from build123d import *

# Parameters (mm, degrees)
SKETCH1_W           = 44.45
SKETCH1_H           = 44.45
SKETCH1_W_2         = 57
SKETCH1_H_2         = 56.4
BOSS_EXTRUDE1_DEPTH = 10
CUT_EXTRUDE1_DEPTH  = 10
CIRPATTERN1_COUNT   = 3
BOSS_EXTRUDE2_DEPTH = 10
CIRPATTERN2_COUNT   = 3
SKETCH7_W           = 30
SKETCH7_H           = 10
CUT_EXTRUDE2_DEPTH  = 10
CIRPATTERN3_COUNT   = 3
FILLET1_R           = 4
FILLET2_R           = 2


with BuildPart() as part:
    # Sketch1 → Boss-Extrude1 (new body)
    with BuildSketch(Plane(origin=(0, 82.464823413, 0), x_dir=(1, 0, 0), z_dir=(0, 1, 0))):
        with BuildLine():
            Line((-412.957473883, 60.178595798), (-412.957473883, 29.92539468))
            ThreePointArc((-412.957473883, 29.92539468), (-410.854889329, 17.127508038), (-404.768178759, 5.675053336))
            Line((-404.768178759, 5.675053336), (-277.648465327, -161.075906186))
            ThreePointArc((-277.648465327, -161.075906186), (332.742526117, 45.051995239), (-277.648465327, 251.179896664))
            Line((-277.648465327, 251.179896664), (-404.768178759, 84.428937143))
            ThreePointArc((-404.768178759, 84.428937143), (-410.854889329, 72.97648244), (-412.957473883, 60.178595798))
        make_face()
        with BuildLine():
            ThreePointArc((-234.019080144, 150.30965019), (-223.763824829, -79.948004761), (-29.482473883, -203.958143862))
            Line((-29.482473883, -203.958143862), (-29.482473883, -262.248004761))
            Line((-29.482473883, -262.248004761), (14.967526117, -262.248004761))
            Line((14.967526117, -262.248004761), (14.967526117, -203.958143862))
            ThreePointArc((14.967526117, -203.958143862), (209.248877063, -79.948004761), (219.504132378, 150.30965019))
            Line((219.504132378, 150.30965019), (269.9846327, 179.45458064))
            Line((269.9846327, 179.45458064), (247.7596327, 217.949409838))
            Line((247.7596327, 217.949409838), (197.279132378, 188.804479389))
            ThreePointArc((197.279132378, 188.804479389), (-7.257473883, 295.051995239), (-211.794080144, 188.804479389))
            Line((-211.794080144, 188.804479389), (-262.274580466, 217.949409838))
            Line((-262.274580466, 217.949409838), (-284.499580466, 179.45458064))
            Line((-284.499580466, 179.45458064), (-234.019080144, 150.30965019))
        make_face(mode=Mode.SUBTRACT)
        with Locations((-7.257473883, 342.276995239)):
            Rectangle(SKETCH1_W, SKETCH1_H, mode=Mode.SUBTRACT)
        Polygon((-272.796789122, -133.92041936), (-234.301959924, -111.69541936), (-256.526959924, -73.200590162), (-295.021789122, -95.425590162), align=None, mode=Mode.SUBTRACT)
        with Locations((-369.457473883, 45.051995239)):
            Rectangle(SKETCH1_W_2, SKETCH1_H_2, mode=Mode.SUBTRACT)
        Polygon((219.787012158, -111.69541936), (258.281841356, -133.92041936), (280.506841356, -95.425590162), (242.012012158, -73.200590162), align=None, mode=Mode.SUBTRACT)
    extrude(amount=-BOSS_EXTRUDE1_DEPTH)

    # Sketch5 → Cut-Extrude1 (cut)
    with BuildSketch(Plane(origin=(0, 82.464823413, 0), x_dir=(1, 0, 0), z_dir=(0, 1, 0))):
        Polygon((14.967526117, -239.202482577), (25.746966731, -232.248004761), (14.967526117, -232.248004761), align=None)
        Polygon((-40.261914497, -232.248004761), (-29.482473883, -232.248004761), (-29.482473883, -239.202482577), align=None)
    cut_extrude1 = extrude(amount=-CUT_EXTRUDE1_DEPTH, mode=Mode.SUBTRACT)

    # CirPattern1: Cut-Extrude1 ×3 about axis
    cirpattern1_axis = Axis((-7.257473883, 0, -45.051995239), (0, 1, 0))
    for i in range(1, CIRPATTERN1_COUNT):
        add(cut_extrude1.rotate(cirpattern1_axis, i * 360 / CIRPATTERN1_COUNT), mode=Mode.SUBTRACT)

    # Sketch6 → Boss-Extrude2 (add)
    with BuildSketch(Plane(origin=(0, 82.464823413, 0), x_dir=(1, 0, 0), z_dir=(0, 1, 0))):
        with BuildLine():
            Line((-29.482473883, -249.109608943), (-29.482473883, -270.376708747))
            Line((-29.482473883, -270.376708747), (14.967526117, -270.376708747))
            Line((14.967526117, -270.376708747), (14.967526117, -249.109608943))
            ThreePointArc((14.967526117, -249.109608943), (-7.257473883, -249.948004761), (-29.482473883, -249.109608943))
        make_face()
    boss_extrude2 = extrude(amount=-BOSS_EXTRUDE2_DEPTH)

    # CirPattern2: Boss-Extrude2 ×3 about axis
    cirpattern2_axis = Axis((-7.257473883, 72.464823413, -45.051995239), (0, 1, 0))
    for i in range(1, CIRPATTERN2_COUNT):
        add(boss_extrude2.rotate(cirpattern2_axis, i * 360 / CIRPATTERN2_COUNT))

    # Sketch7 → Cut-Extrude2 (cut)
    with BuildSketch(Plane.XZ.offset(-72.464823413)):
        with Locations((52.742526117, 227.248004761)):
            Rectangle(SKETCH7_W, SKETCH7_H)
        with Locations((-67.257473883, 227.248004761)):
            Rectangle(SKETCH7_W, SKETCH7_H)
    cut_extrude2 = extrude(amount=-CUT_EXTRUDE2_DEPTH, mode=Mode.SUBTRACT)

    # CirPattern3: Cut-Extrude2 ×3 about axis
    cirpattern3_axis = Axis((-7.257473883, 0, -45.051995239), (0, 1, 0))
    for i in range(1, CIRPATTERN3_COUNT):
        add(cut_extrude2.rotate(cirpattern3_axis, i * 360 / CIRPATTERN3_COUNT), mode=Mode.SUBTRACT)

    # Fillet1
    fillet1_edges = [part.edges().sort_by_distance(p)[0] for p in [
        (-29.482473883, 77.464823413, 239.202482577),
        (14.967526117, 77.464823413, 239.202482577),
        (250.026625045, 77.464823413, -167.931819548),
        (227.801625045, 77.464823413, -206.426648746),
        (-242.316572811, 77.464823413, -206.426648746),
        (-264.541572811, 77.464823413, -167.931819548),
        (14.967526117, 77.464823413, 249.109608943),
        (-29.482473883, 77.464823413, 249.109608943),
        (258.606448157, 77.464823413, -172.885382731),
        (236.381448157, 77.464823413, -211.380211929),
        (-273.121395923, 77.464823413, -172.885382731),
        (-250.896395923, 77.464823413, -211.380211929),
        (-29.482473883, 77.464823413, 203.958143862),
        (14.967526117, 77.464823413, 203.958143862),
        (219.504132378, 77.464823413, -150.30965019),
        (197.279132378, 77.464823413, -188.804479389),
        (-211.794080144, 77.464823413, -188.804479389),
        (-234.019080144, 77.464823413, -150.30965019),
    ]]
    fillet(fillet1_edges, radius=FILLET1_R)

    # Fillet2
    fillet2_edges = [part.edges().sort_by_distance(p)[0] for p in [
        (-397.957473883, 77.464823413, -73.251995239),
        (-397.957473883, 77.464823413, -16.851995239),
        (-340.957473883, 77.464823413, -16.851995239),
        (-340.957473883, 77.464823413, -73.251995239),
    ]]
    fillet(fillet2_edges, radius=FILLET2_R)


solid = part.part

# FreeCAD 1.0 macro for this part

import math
import FreeCAD as App
import Part
import Sketcher
from FreeCAD import Vector
Q = App.Units.Quantity


def edges_at(feature, points):
    """Names of the edges that pass closest to the given points."""
    edges = feature.Shape.Edges
    near = lambda p: min(range(len(edges)), key=lambda i: edges[i].distToShape(Part.Vertex(*p))[0])
    return sorted({f"Edge{near(p) + 1}" for p in points})

doc = App.newDocument("Part")
params = doc.addObject("Spreadsheet::Sheet", "Params")
for row, (alias, value) in enumerate([
    ("sketch1_radius", "40 mm"),
    ("sketch1_radius2", "340 mm"),
    ("sketch1_radius3", "250 mm"),
    ("sketch1_width", "57 mm"),
    ("sketch1_height", "56.4 mm"),
    ("pad1_length", "10 mm"),
    ("pocket1_length", "10 mm"),
    ("sketch3_radius", "295 mm"),
    ("sketch3_width", "44.45 mm"),
    ("pad2_length", "10 mm"),
    ("sketch4_width", "30 mm"),
    ("sketch4_height", "10 mm"),
    ("pocket2_length", "10 mm"),
    ("fillet_radius", "4 mm"),
    ("fillet2_radius", "2 mm"),
], start=1):
    params.set(f"A{row}", alias)
    params.set(f"B{row}", "=" + value)
    params.setAlias(f"B{row}", alias)

body = doc.addObject("PartDesign::Body", "Body")

# Sketch on XZ plane
sketch1 = body.newObject("Sketcher::SketchObject", "Sketch")
sketch1.AttachmentSupport = (doc.getObject("XZ_Plane"), [""])
sketch1.MapMode = "FlatFace"
sketch1.AttachmentOffset = App.Placement(Vector(0, 0, -82.464823), App.Rotation())
sketch1.addGeometry(Part.LineSegment(Vector(-413, -60, 0), Vector(-413, -30, 0)), False)
sketch1.addGeometry(Part.ArcOfCircle(Part.Circle(Vector(-373, -30, 0), Vector(0, 0, 1), 40), math.radians(143), math.radians(180)), False)
sketch1.addGeometry(Part.LineSegment(Vector(-405, -6, 0), Vector(-278, 161, 0)), False)
sketch1.addGeometry(Part.ArcOfCircle(Part.Circle(Vector(-7, -45, 0), Vector(0, 0, 1), 340), math.radians(-143), math.radians(143)), False)
sketch1.addGeometry(Part.LineSegment(Vector(-278, -251, 0), Vector(-405, -84, 0)), False)
sketch1.addGeometry(Part.ArcOfCircle(Part.Circle(Vector(-373, -60, 0), Vector(0, 0, 1), 40), math.radians(-180), math.radians(-143)), False)
sketch1.addGeometry(Part.LineSegment(Vector(-234, 112, 0), Vector(-273, 134, 0)), False)
sketch1.addGeometry(Part.LineSegment(Vector(-273, 134, 0), Vector(-295, 95, 0)), False)
sketch1.addGeometry(Part.LineSegment(Vector(-295, 95, 0), Vector(-257, 73, 0)), False)
sketch1.addGeometry(Part.LineSegment(Vector(-257, 73, 0), Vector(-234, 112, 0)), False)
sketch1.addGeometry(Part.LineSegment(Vector(-341, -17, 0), Vector(-398, -17, 0)), False)
sketch1.addGeometry(Part.LineSegment(Vector(-398, -17, 0), Vector(-398, -73, 0)), False)
sketch1.addGeometry(Part.LineSegment(Vector(-398, -73, 0), Vector(-341, -73, 0)), False)
sketch1.addGeometry(Part.LineSegment(Vector(-341, -73, 0), Vector(-341, -17, 0)), False)
sketch1.addGeometry(Part.ArcOfCircle(Part.Circle(Vector(-7, -45, 0), Vector(0, 0, 1), 250), math.radians(95), math.radians(205)), False)
sketch1.addGeometry(Part.LineSegment(Vector(-234, -150, 0), Vector(-284, -179, 0)), False)
sketch1.addGeometry(Part.LineSegment(Vector(-284, -179, 0), Vector(-262, -218, 0)), False)
sketch1.addGeometry(Part.LineSegment(Vector(-262, -218, 0), Vector(-212, -189, 0)), False)
sketch1.addGeometry(Part.ArcOfCircle(Part.Circle(Vector(-7, -45, 0), Vector(0, 0, 1), 250), math.radians(-145), math.radians(-35)), False)
sketch1.addGeometry(Part.LineSegment(Vector(197, -189, 0), Vector(248, -218, 0)), False)
sketch1.addGeometry(Part.LineSegment(Vector(248, -218, 0), Vector(270, -179, 0)), False)
sketch1.addGeometry(Part.LineSegment(Vector(270, -179, 0), Vector(220, -150, 0)), False)
sketch1.addGeometry(Part.ArcOfCircle(Part.Circle(Vector(-7, -45, 0), Vector(0, 0, 1), 250), math.radians(-25), math.radians(85)), False)
sketch1.addGeometry(Part.LineSegment(Vector(15, 204, 0), Vector(15, 262, 0)), False)
sketch1.addGeometry(Part.LineSegment(Vector(15, 262, 0), Vector(-29, 262, 0)), False)
sketch1.addGeometry(Part.LineSegment(Vector(-29, 262, 0), Vector(-29, 204, 0)), False)
sketch1.addGeometry(Part.LineSegment(Vector(258, 134, 0), Vector(220, 112, 0)), False)
sketch1.addGeometry(Part.LineSegment(Vector(220, 112, 0), Vector(242, 73, 0)), False)
sketch1.addGeometry(Part.LineSegment(Vector(242, 73, 0), Vector(281, 95, 0)), False)
sketch1.addGeometry(Part.LineSegment(Vector(281, 95, 0), Vector(258, 134, 0)), False)
sketch1.addGeometry(Part.LineSegment(Vector(15, -320, 0), Vector(-29, -320, 0)), False)
sketch1.addGeometry(Part.LineSegment(Vector(-29, -320, 0), Vector(-29, -365, 0)), False)
sketch1.addGeometry(Part.LineSegment(Vector(-29, -365, 0), Vector(15, -365, 0)), False)
sketch1.addGeometry(Part.LineSegment(Vector(15, -365, 0), Vector(15, -320, 0)), False)
sketch1.addConstraint(Sketcher.Constraint("Tangent", 0, 2, 1, 2))
sketch1.addConstraint(Sketcher.Constraint("Tangent", 1, 1, 2, 1))
sketch1.addConstraint(Sketcher.Constraint("Tangent", 2, 2, 3, 2))
sketch1.addConstraint(Sketcher.Constraint("Tangent", 3, 1, 4, 1))
sketch1.addConstraint(Sketcher.Constraint("Tangent", 4, 2, 5, 2))
sketch1.addConstraint(Sketcher.Constraint("Tangent", 5, 1, 0, 1))
sketch1.addConstraint(Sketcher.Constraint("Coincident", 6, 2, 7, 1))
sketch1.addConstraint(Sketcher.Constraint("Coincident", 7, 2, 8, 1))
sketch1.addConstraint(Sketcher.Constraint("Coincident", 8, 2, 9, 1))
sketch1.addConstraint(Sketcher.Constraint("Coincident", 9, 2, 6, 1))
sketch1.addConstraint(Sketcher.Constraint("Coincident", 10, 2, 11, 1))
sketch1.addConstraint(Sketcher.Constraint("Coincident", 11, 2, 12, 1))
sketch1.addConstraint(Sketcher.Constraint("Coincident", 12, 2, 13, 1))
sketch1.addConstraint(Sketcher.Constraint("Coincident", 13, 2, 10, 1))
sketch1.addConstraint(Sketcher.Constraint("Coincident", 14, 2, 15, 1))
sketch1.addConstraint(Sketcher.Constraint("Coincident", 15, 2, 16, 1))
sketch1.addConstraint(Sketcher.Constraint("Coincident", 16, 2, 17, 1))
sketch1.addConstraint(Sketcher.Constraint("Coincident", 17, 2, 18, 1))
sketch1.addConstraint(Sketcher.Constraint("Coincident", 18, 2, 19, 1))
sketch1.addConstraint(Sketcher.Constraint("Coincident", 19, 2, 20, 1))
sketch1.addConstraint(Sketcher.Constraint("Coincident", 20, 2, 21, 1))
sketch1.addConstraint(Sketcher.Constraint("Coincident", 21, 2, 22, 1))
sketch1.addConstraint(Sketcher.Constraint("Coincident", 22, 2, 23, 1))
sketch1.addConstraint(Sketcher.Constraint("Coincident", 23, 2, 24, 1))
sketch1.addConstraint(Sketcher.Constraint("Coincident", 24, 2, 25, 1))
sketch1.addConstraint(Sketcher.Constraint("Coincident", 25, 2, 14, 1))
sketch1.addConstraint(Sketcher.Constraint("Coincident", 26, 2, 27, 1))
sketch1.addConstraint(Sketcher.Constraint("Coincident", 27, 2, 28, 1))
sketch1.addConstraint(Sketcher.Constraint("Coincident", 28, 2, 29, 1))
sketch1.addConstraint(Sketcher.Constraint("Coincident", 29, 2, 26, 1))
sketch1.addConstraint(Sketcher.Constraint("Coincident", 30, 2, 31, 1))
sketch1.addConstraint(Sketcher.Constraint("Coincident", 31, 2, 32, 1))
sketch1.addConstraint(Sketcher.Constraint("Coincident", 32, 2, 33, 1))
sketch1.addConstraint(Sketcher.Constraint("Coincident", 33, 2, 30, 1))
sketch1.addConstraint(Sketcher.Constraint("Vertical", 0))
sketch1.addConstraint(Sketcher.Constraint("Horizontal", 10))
sketch1.addConstraint(Sketcher.Constraint("Vertical", 11))
sketch1.addConstraint(Sketcher.Constraint("Horizontal", 12))
sketch1.addConstraint(Sketcher.Constraint("Vertical", 13))
sketch1.addConstraint(Sketcher.Constraint("Vertical", 23))
sketch1.addConstraint(Sketcher.Constraint("Horizontal", 24))
sketch1.addConstraint(Sketcher.Constraint("Vertical", 25))
sketch1.addConstraint(Sketcher.Constraint("Horizontal", 30))
sketch1.addConstraint(Sketcher.Constraint("Vertical", 31))
sketch1.addConstraint(Sketcher.Constraint("Horizontal", 32))
sketch1.addConstraint(Sketcher.Constraint("Vertical", 33))
sketch1.addConstraint(Sketcher.Constraint("Coincident", 14, 3, 3, 3))
sketch1.addConstraint(Sketcher.Constraint("Coincident", 18, 3, 3, 3))
sketch1.addConstraint(Sketcher.Constraint("Coincident", 22, 3, 3, 3))
sketch1.addConstraint(Sketcher.Constraint("Equal", 1, 5))
sketch1.addConstraint(Sketcher.Constraint("Equal", 14, 18))
sketch1.addConstraint(Sketcher.Constraint("Equal", 18, 22))
sketch1.addConstraint(Sketcher.Constraint("Perpendicular", 6, 7))
sketch1.addConstraint(Sketcher.Constraint("Perpendicular", 7, 8))
sketch1.addConstraint(Sketcher.Constraint("Perpendicular", 8, 9))
sketch1.addConstraint(Sketcher.Constraint("Perpendicular", 15, 16))
sketch1.addConstraint(Sketcher.Constraint("Perpendicular", 16, 17))
sketch1.addConstraint(Sketcher.Constraint("Perpendicular", 9, 19))
sketch1.addConstraint(Sketcher.Constraint("Perpendicular", 19, 20))
sketch1.addConstraint(Sketcher.Constraint("Perpendicular", 20, 21))
sketch1.addConstraint(Sketcher.Constraint("Parallel", 17, 26))
sketch1.addConstraint(Sketcher.Constraint("Perpendicular", 26, 27))
sketch1.addConstraint(Sketcher.Constraint("Perpendicular", 27, 28))
sketch1.addConstraint(Sketcher.Constraint("Perpendicular", 28, 29))
sketch1.addConstraint(Sketcher.Constraint("Horizontal", 17, 2, 18, 2))
sketch1.addConstraint(Sketcher.Constraint("Horizontal", 16, 2, 19, 2))
sketch1.addConstraint(Sketcher.Constraint("Horizontal", 15, 2, 20, 2))
sketch1.addConstraint(Sketcher.Constraint("Horizontal", 22, 2, 25, 2))
sketch1.addConstraint(Sketcher.Constraint("Horizontal", 9, 2, 26, 2))
sketch1.addConstraint(Sketcher.Constraint("Horizontal", 8, 2, 27, 2))
sketch1.addConstraint(Sketcher.Constraint("Horizontal", 7, 2, 28, 2))
sketch1.addConstraint(Sketcher.Constraint("Vertical", 2, 2, 3, 1))
sketch1.addConstraint(Sketcher.Constraint("Vertical", 25, 2, 30, 2))
sketch1.addConstraint(Sketcher.Constraint("Vertical", 23, 2, 32, 2))
sketch1.addConstraint(Sketcher.Constraint("Equal", 32, 31))
sketch1.addConstraint(Sketcher.Constraint("Equal", 6, 7))
sketch1.addConstraint(Sketcher.Constraint("Equal", 9, 16))
sketch1.addConstraint(Sketcher.Constraint("Equal", 15, 17))
sketch1.addConstraint(Sketcher.Constraint("Equal", 17, 19))
sketch1.addConstraint(Sketcher.Constraint("Radius", 1, Q("40 mm")))
sketch1.addConstraint(Sketcher.Constraint("Radius", 3, Q("340 mm")))
sketch1.addConstraint(Sketcher.Constraint("Radius", 14, Q("250 mm")))
sketch1.addConstraint(Sketcher.Constraint("DistanceX", 10, 2, 10, 1, Q("57 mm")))
sketch1.addConstraint(Sketcher.Constraint("Angle", 6, Q("150 deg")))
sketch1.addConstraint(Sketcher.Constraint("DistanceY", 11, 2, 11, 1, Q("56.4 mm")))
sketch1.addConstraint(Sketcher.Constraint("DistanceX", 0, 2, 10, 2, Q("15 mm")))
sketch1.addConstraint(Sketcher.Constraint("DistanceX", 24, 2, 24, 1, Q("44.45 mm")))
sketch1.addConstraint(Sketcher.Constraint("DistanceX", 1, 3, 3, 3, Q("365.7 mm")))
sketch1.addConstraint(Sketcher.Constraint("DistanceY", 3, 3, 23, 2, Q("307.3 mm")))
sketch1.addConstraint(Sketcher.Constraint("Distance", 6, Q("44.45 mm")))
sketch1.addConstraint(Sketcher.Constraint("DistanceY", 0, 1, 0, 2, Q("30.253201 mm")))
sketch1.addConstraint(Sketcher.Constraint("DistanceY", 0, 2, 10, 2, Q("13.073399 mm")))
sketch1.addConstraint(Sketcher.Constraint("DistanceX", 15, 2, 14, 2, Q("50.4805 mm")))
sketch1.addConstraint(Sketcher.Constraint("DistanceX", 1, 1, -1, 1, Q("404.768179 mm")))
sketch1.addConstraint(Sketcher.Constraint("DistanceX", 6, 2, -1, 1, Q("272.796789 mm")))
sketch1.addConstraint(Sketcher.Constraint("DistanceY", -1, 1, 6, 2, Q("133.920419 mm")))
sketch1.addConstraint(Sketcher.Constraint("DistanceY", 15, 2, -1, 1, Q("179.454581 mm")))
sketch1.addConstraint(Sketcher.Constraint("DistanceX", -1, 1, 28, 2, Q("280.506841 mm")))
sketch1.addConstraint(Sketcher.Constraint("DistanceY", 30, 2, -1, 1, Q("320.051995 mm")))
sketch1.setExpression("Constraints[79]", "Params.sketch1_radius")
sketch1.setExpression("Constraints[80]", "Params.sketch1_radius2")
sketch1.setExpression("Constraints[81]", "Params.sketch1_radius3")
sketch1.setExpression("Constraints[82]", "Params.sketch1_width")
sketch1.setExpression("Constraints[84]", "Params.sketch1_height")
pad1 = body.newObject("PartDesign::Pad", "Pad")
pad1.Profile = sketch1
pad1.setExpression("Length", "Params.pad1_length")

# Sketch on XZ plane
sketch2 = body.newObject("Sketcher::SketchObject", "Sketch001")
sketch2.AttachmentSupport = (doc.getObject("XZ_Plane"), [""])
sketch2.MapMode = "FlatFace"
sketch2.AttachmentOffset = App.Placement(Vector(0, 0, -82.464823), App.Rotation())
sketch2.addGeometry(Part.LineSegment(Vector(15, 239, 0), Vector(26, 232, 0)), False)
sketch2.addGeometry(Part.LineSegment(Vector(26, 232, 0), Vector(15, 232, 0)), False)
sketch2.addGeometry(Part.LineSegment(Vector(15, 232, 0), Vector(15, 239, 0)), False)
sketch2.addGeometry(Part.LineSegment(Vector(-29, 232, 0), Vector(-40, 232, 0)), False)
sketch2.addGeometry(Part.LineSegment(Vector(-40, 232, 0), Vector(-29, 239, 0)), False)
sketch2.addGeometry(Part.LineSegment(Vector(-29, 239, 0), Vector(-29, 232, 0)), False)
sketch2.addConstraint(Sketcher.Constraint("Coincident", 0, 2, 1, 1))
sketch2.addConstraint(Sketcher.Constraint("Coincident", 1, 2, 2, 1))
sketch2.addConstraint(Sketcher.Constraint("Coincident", 2, 2, 0, 1))
sketch2.addConstraint(Sketcher.Constraint("Coincident", 3, 2, 4, 1))
sketch2.addConstraint(Sketcher.Constraint("Coincident", 4, 2, 5, 1))
sketch2.addConstraint(Sketcher.Constraint("Coincident", 5, 2, 3, 1))
sketch2.addConstraint(Sketcher.Constraint("Horizontal", 1))
sketch2.addConstraint(Sketcher.Constraint("Vertical", 2))
sketch2.addConstraint(Sketcher.Constraint("Horizontal", 3))
sketch2.addConstraint(Sketcher.Constraint("Vertical", 5))
sketch2.addConstraint(Sketcher.Constraint("Horizontal", 1, 2, 3, 2))
sketch2.addConstraint(Sketcher.Constraint("Horizontal", 2, 2, 4, 2))
sketch2.addConstraint(Sketcher.Constraint("Equal", 1, 3))
sketch2.addConstraint(Sketcher.Constraint("DistanceX", 4, 2, 2, 2, Q("44.45 mm")))
sketch2.addConstraint(Sketcher.Constraint("DistanceX", 1, 2, 1, 1, Q("10.779441 mm")))
sketch2.addConstraint(Sketcher.Constraint("DistanceY", 2, 1, 2, 2, Q("6.954478 mm")))
sketch2.addConstraint(Sketcher.Constraint("DistanceX", -1, 1, 0, 2, Q("25.746967 mm")))
sketch2.addConstraint(Sketcher.Constraint("DistanceY", -1, 1, 0, 2, Q("232.248005 mm")))
pocket1 = body.newObject("PartDesign::Pocket", "Pocket")
pocket1.Profile = sketch2
pocket1.setExpression("Length", "Params.pocket1_length")
pocket1.Reversed = True
doc.recompute()

datumline = body.newObject("PartDesign::Line", "DatumLine")
datumline.Placement = App.Placement(Vector(-7.257474, 0, -45.051995), App.Rotation(Vector(0, 0, 1), Vector(0, 1, 0)))
polarpattern = body.newObject("PartDesign::PolarPattern", "PolarPattern")
polarpattern.Originals = [pocket1]
polarpattern.Axis = (datumline, [""])
polarpattern.Angle = 360
polarpattern.Occurrences = 3
body.Tip = polarpattern

# Sketch on XZ plane
sketch3 = body.newObject("Sketcher::SketchObject", "Sketch002")
sketch3.AttachmentSupport = (doc.getObject("XZ_Plane"), [""])
sketch3.MapMode = "FlatFace"
sketch3.AttachmentOffset = App.Placement(Vector(0, 0, -82.464823), App.Rotation())
sketch3.addGeometry(Part.LineSegment(Vector(-29, 249, 0), Vector(-29, 270, 0)), False)
sketch3.addGeometry(Part.LineSegment(Vector(-29, 270, 0), Vector(15, 270, 0)), False)
sketch3.addGeometry(Part.LineSegment(Vector(15, 270, 0), Vector(15, 249, 0)), False)
sketch3.addGeometry(Part.ArcOfCircle(Part.Circle(Vector(-7, -45, 0), Vector(0, 0, 1), 295), math.radians(85.68), math.radians(94.32)), False)
sketch3.addConstraint(Sketcher.Constraint("Coincident", 0, 2, 1, 1))
sketch3.addConstraint(Sketcher.Constraint("Coincident", 1, 2, 2, 1))
sketch3.addConstraint(Sketcher.Constraint("Coincident", 2, 2, 3, 1))
sketch3.addConstraint(Sketcher.Constraint("Coincident", 3, 2, 0, 1))
sketch3.addConstraint(Sketcher.Constraint("Vertical", 0))
sketch3.addConstraint(Sketcher.Constraint("Horizontal", 1))
sketch3.addConstraint(Sketcher.Constraint("Vertical", 2))
sketch3.addConstraint(Sketcher.Constraint("Horizontal", 2, 2, 3, 2))
sketch3.addConstraint(Sketcher.Constraint("Radius", 3, Q("295 mm")))
sketch3.addConstraint(Sketcher.Constraint("DistanceX", 1, 1, 1, 2, Q("44.45 mm")))
sketch3.addConstraint(Sketcher.Constraint("DistanceY", 0, 1, 0, 2, Q("21.2671 mm")))
sketch3.addConstraint(Sketcher.Constraint("DistanceY", -1, 1, 0, 2, Q("270.376709 mm")))
sketch3.addConstraint(Sketcher.Constraint("DistanceX", 3, 3, -1, 1, Q("7.257474 mm")))
sketch3.setExpression("Constraints[8]", "Params.sketch3_radius")
sketch3.setExpression("Constraints[9]", "Params.sketch3_width")
pad2 = body.newObject("PartDesign::Pad", "Pad001")
pad2.Profile = sketch3
pad2.setExpression("Length", "Params.pad2_length")
doc.recompute()

datumline2 = body.newObject("PartDesign::Line", "DatumLine001")
datumline2.Placement = App.Placement(Vector(-7.257474, 0, -45.051995), App.Rotation(Vector(0, 0, 1), Vector(0, 1, 0)))
polarpattern2 = body.newObject("PartDesign::PolarPattern", "PolarPattern001")
polarpattern2.Originals = [pad2]
polarpattern2.Axis = (datumline2, [""])
polarpattern2.Angle = 360
polarpattern2.Occurrences = 3
body.Tip = polarpattern2

# Sketch on XZ plane
sketch4 = body.newObject("Sketcher::SketchObject", "Sketch003")
sketch4.AttachmentSupport = (doc.getObject("XZ_Plane"), [""])
sketch4.MapMode = "FlatFace"
sketch4.AttachmentOffset = App.Placement(Vector(0, 0, -72.464823), App.Rotation())
sketch4.addGeometry(Part.LineSegment(Vector(38, 232, 0), Vector(38, 222, 0)), False)
sketch4.addGeometry(Part.LineSegment(Vector(38, 222, 0), Vector(68, 222, 0)), False)
sketch4.addGeometry(Part.LineSegment(Vector(68, 222, 0), Vector(68, 232, 0)), False)
sketch4.addGeometry(Part.LineSegment(Vector(68, 232, 0), Vector(38, 232, 0)), False)
sketch4.addGeometry(Part.LineSegment(Vector(-82, 232, 0), Vector(-82, 222, 0)), False)
sketch4.addGeometry(Part.LineSegment(Vector(-82, 222, 0), Vector(-52, 222, 0)), False)
sketch4.addGeometry(Part.LineSegment(Vector(-52, 222, 0), Vector(-52, 232, 0)), False)
sketch4.addGeometry(Part.LineSegment(Vector(-52, 232, 0), Vector(-82, 232, 0)), False)
sketch4.addConstraint(Sketcher.Constraint("Coincident", 0, 2, 1, 1))
sketch4.addConstraint(Sketcher.Constraint("Coincident", 1, 2, 2, 1))
sketch4.addConstraint(Sketcher.Constraint("Coincident", 2, 2, 3, 1))
sketch4.addConstraint(Sketcher.Constraint("Coincident", 3, 2, 0, 1))
sketch4.addConstraint(Sketcher.Constraint("Coincident", 4, 2, 5, 1))
sketch4.addConstraint(Sketcher.Constraint("Coincident", 5, 2, 6, 1))
sketch4.addConstraint(Sketcher.Constraint("Coincident", 6, 2, 7, 1))
sketch4.addConstraint(Sketcher.Constraint("Coincident", 7, 2, 4, 1))
sketch4.addConstraint(Sketcher.Constraint("Vertical", 0))
sketch4.addConstraint(Sketcher.Constraint("Horizontal", 1))
sketch4.addConstraint(Sketcher.Constraint("Vertical", 2))
sketch4.addConstraint(Sketcher.Constraint("Horizontal", 3))
sketch4.addConstraint(Sketcher.Constraint("Vertical", 4))
sketch4.addConstraint(Sketcher.Constraint("Horizontal", 5))
sketch4.addConstraint(Sketcher.Constraint("Vertical", 6))
sketch4.addConstraint(Sketcher.Constraint("Horizontal", 7))
sketch4.addConstraint(Sketcher.Constraint("Horizontal", 1, 2, 4, 2))
sketch4.addConstraint(Sketcher.Constraint("Horizontal", 3, 2, 6, 2))
sketch4.addConstraint(Sketcher.Constraint("Equal", 3, 5))
sketch4.addConstraint(Sketcher.Constraint("DistanceX", 1, 1, 1, 2, Q("30 mm")))
sketch4.addConstraint(Sketcher.Constraint("DistanceY", 0, 2, 0, 1, Q("10 mm")))
sketch4.addConstraint(Sketcher.Constraint("DistanceX", 4, 2, 0, 2, Q("120 mm")))
sketch4.addConstraint(Sketcher.Constraint("DistanceX", -1, 1, 0, 2, Q("37.742526 mm")))
sketch4.addConstraint(Sketcher.Constraint("DistanceY", -1, 1, 0, 2, Q("222.248005 mm")))
sketch4.setExpression("Constraints[19]", "Params.sketch4_width")
sketch4.setExpression("Constraints[20]", "Params.sketch4_height")
pocket2 = body.newObject("PartDesign::Pocket", "Pocket001")
pocket2.Profile = sketch4
pocket2.setExpression("Length", "Params.pocket2_length")
doc.recompute()

datumline3 = body.newObject("PartDesign::Line", "DatumLine002")
datumline3.Placement = App.Placement(Vector(-7.257474, 0, -45.051995), App.Rotation(Vector(0, 0, 1), Vector(0, 1, 0)))
polarpattern3 = body.newObject("PartDesign::PolarPattern", "PolarPattern002")
polarpattern3.Originals = [pocket2]
polarpattern3.Axis = (datumline3, [""])
polarpattern3.Angle = 360
polarpattern3.Occurrences = 3
body.Tip = polarpattern3
doc.recompute()

fillet = body.newObject("PartDesign::Fillet", "Fillet")
fillet.Base = (polarpattern3, edges_at(polarpattern3, [
    (-29.482, 77.465, 239.202),
    (14.968, 77.465, 239.202),
    (250.027, 77.465, -167.932),
    (227.802, 77.465, -206.427),
    (-242.317, 77.465, -206.427),
    (-264.542, 77.465, -167.932),
    (14.968, 77.465, 249.11),
    (-29.482, 77.465, 249.11),
    (258.606, 77.465, -172.885),
    (236.381, 77.465, -211.38),
    (-273.121, 77.465, -172.885),
    (-250.896, 77.465, -211.38),
    (-29.482, 77.465, 203.958),
    (14.968, 77.465, 203.958),
    (219.504, 77.465, -150.31),
    (197.279, 77.465, -188.804),
    (-211.794, 77.465, -188.804),
    (-234.019, 77.465, -150.31),
]))
fillet.setExpression("Radius", "Params.fillet_radius")
doc.recompute()

fillet2 = body.newObject("PartDesign::Fillet", "Fillet001")
fillet2.Base = (fillet, edges_at(fillet, [
    (-397.957, 77.465, -73.252),
    (-397.957, 77.465, -16.852),
    (-340.957, 77.465, -16.852),
    (-340.957, 77.465, -73.252),
]))
fillet2.setExpression("Radius", "Params.fillet2_radius")

doc.recompute()
